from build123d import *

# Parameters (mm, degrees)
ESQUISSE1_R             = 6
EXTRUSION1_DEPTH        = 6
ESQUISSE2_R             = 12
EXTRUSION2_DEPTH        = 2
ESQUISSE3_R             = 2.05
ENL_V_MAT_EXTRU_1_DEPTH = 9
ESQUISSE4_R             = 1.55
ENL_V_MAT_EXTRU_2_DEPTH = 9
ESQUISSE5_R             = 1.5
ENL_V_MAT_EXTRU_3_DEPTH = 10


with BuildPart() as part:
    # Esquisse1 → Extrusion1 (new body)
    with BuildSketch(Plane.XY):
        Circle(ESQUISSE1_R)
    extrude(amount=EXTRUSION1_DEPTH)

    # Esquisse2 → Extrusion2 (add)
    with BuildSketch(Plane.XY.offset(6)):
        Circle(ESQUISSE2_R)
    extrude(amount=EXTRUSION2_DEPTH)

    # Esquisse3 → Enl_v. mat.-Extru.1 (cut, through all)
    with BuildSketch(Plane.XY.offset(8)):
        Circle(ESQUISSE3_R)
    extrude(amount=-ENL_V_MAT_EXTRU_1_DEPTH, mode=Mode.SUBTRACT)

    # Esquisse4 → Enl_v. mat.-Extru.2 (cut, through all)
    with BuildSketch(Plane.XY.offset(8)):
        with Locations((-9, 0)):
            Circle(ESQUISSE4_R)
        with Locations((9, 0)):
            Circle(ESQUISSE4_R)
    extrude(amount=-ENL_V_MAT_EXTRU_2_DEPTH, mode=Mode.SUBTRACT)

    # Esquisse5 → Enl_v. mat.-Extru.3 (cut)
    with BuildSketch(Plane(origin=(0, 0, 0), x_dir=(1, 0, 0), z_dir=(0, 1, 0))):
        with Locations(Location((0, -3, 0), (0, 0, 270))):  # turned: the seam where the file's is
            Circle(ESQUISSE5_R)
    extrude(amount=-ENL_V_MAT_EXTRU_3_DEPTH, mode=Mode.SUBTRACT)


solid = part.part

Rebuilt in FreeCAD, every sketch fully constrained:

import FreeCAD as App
import Part
import Sketcher

V = App.Vector

doc = App.newDocument("Part")
params = doc.addObject("Spreadsheet::Sheet", "Params")
for row, (alias, value) in enumerate([
    ("sketch1_diameter", "12 mm"),
    ("pad1_length", "6 mm"),
    ("sketch2_diameter", "24 mm"),
    ("pad2_length", "2 mm"),
    ("sketch3_diameter", "4.1 mm"),
    ("sketch4_diameter", "3.1 mm"),
    ("sketch5_diameter", "3 mm"),
    ("pocket3_length", "10 mm"),
], start=1):
    params.set(f"A{row}", alias)
    params.set(f"B{row}", "=" + value)
    params.setAlias(f"B{row}", alias)

body = doc.addObject("PartDesign::Body", "Body")

# Sketch on XY plane
sketch1 = doc.addObject("Sketcher::SketchObject", "Sketch")
body.addObject(sketch1)
sketch1.AttachmentSupport = (doc.XY_Plane, [""])
sketch1.MapMode = "FlatFace"
sketch1.addGeometry(Part.Circle(V(0, 0, 0), V(0, 0, 1), 6), False)
sketch1.addConstraint([
    Sketcher.Constraint("Coincident", 0, 3, -1, 1),
    Sketcher.Constraint("Diameter", 0, 12.0),
])
sketch1.setExpression("Constraints[1]", "Params.sketch1_diameter")
pad1 = doc.addObject("PartDesign::Pad", "Pad")
body.addObject(pad1)
pad1.Profile = sketch1
pad1.setExpression("Length", "Params.pad1_length")

# Sketch on XY plane
sketch2 = doc.addObject("Sketcher::SketchObject", "Sketch001")
body.addObject(sketch2)
sketch2.AttachmentSupport = (doc.XY_Plane, [""])
sketch2.MapMode = "FlatFace"
sketch2.AttachmentOffset = App.Placement(V(0, 0, 6), App.Rotation())
sketch2.addGeometry(Part.Circle(V(0, 0, 0), V(0, 0, 1), 12), False)
sketch2.addConstraint([
    Sketcher.Constraint("Coincident", 0, 3, -1, 1),
    Sketcher.Constraint("Diameter", 0, 24.0),
])
sketch2.setExpression("Constraints[1]", "Params.sketch2_diameter")
pad2 = doc.addObject("PartDesign::Pad", "Pad001")
body.addObject(pad2)
pad2.Profile = sketch2
pad2.setExpression("Length", "Params.pad2_length")

# Sketch on XY plane
sketch3 = doc.addObject("Sketcher::SketchObject", "Sketch002")
body.addObject(sketch3)
sketch3.AttachmentSupport = (doc.XY_Plane, [""])
sketch3.MapMode = "FlatFace"
sketch3.AttachmentOffset = App.Placement(V(0, 0, 8), App.Rotation())
sketch3.addGeometry(Part.Circle(V(0, 0, 0), V(0, 0, 1), 2.05), False)
sketch3.addConstraint([
    Sketcher.Constraint("Coincident", 0, 3, -1, 1),
    Sketcher.Constraint("Diameter", 0, 4.1),
])
sketch3.setExpression("Constraints[1]", "Params.sketch3_diameter")
pocket1 = doc.addObject("PartDesign::Pocket", "Pocket")
body.addObject(pocket1)
pocket1.Profile = sketch3
pocket1.Type = "ThroughAll"

# Sketch on XY plane
sketch4 = doc.addObject("Sketcher::SketchObject", "Sketch003")
body.addObject(sketch4)
sketch4.AttachmentSupport = (doc.XY_Plane, [""])
sketch4.MapMode = "FlatFace"
sketch4.AttachmentOffset = App.Placement(V(0, 0, 8), App.Rotation())
sketch4.addGeometry([
    Part.Circle(V(-9, 0, 0), V(0, 0, 1), 1.55),
    Part.Circle(V(9, 0, 0), V(0, 0, 1), 1.55),
], False)
sketch4.addConstraint([
    Sketcher.Constraint("Equal", 0, 1),
    Sketcher.Constraint("Symmetric", 0, 3, 1, 3, -1, 1),
    Sketcher.Constraint("PointOnObject", 0, 3, -1),
    Sketcher.Constraint("Diameter", 0, 3.1),
    Sketcher.Constraint("DistanceX", 0, 3, -1, 1, 9.0),
])
sketch4.setExpression("Constraints[3]", "Params.sketch4_diameter")
pocket2 = doc.addObject("PartDesign::Pocket", "Pocket001")
body.addObject(pocket2)
pocket2.Profile = sketch4
pocket2.Type = "ThroughAll"

# Sketch on XZ plane
sketch5 = doc.addObject("Sketcher::SketchObject", "Sketch004")
body.addObject(sketch5)
sketch5.AttachmentSupport = (doc.XZ_Plane, [""])
sketch5.MapMode = "FlatFace"
sketch5.addGeometry(Part.Circle(V(0, 3, 0), V(0, 0, 1), 1.5), False)
sketch5.addConstraint([
    Sketcher.Constraint("PointOnObject", 0, 3, -2),
    Sketcher.Constraint("Diameter", 0, 3.0),
    Sketcher.Constraint("DistanceY", -1, 1, 0, 3, 3.0),
])
sketch5.setExpression("Constraints[1]", "Params.sketch5_diameter")
pocket3 = doc.addObject("PartDesign::Pocket", "Pocket002")
body.addObject(pocket3)
pocket3.Profile = sketch5
pocket3.setExpression("Length", "Params.pocket3_length")
pocket3.Reversed = True

doc.recompute()
